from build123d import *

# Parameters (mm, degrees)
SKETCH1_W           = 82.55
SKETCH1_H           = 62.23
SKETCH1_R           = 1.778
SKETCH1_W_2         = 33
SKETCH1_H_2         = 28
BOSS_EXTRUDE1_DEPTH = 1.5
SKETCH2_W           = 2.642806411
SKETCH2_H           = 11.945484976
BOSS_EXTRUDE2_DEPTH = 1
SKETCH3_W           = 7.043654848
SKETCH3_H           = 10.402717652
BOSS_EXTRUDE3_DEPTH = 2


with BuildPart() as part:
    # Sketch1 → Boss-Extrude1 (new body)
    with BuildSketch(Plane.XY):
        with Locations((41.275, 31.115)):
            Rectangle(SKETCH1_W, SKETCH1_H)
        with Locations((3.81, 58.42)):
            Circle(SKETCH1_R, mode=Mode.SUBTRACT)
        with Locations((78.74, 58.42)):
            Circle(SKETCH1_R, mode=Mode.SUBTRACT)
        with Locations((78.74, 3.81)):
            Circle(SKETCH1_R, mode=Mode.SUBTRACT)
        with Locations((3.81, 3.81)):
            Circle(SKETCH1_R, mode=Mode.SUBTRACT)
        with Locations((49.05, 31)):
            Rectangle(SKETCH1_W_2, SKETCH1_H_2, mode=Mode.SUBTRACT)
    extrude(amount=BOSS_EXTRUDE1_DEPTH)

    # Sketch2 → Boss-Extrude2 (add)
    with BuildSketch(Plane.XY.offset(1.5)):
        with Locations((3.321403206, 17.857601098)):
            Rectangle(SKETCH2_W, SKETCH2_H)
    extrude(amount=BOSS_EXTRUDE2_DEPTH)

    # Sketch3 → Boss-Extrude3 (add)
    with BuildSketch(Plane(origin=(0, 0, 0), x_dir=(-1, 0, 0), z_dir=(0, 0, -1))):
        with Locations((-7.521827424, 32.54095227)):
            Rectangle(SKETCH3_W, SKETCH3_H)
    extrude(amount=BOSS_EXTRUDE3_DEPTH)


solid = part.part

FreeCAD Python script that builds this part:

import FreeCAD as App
import Part
import Sketcher
Q = App.Units.Quantity

doc = App.newDocument("Part")
body = doc.addObject("PartDesign::Body", "Body")

# Sketch on XY plane
sketch1 = body.newObject("Sketcher::SketchObject", "Sketch")
sketch1.AttachmentSupport = (doc.getObject("XY_Plane"), [""])
sketch1.MapMode = "FlatFace"
sketch1.addGeometry([
    Part.LineSegment(App.Vector(0, 62.23, 0), App.Vector(0, 0, 0)),  # 0
    Part.LineSegment(App.Vector(0, 0, 0), App.Vector(82.55, 0, 0)),  # 1
    Part.LineSegment(App.Vector(82.55, 0, 0), App.Vector(82.55, 62.23, 0)),  # 2
    Part.LineSegment(App.Vector(82.55, 62.23, 0), App.Vector(0, 62.23, 0)),  # 3
    Part.Circle(App.Vector(3.81, 3.81, 0), App.Vector(0, 0, 1), 1.778),  # 4
    Part.Circle(App.Vector(78.74, 3.81, 0), App.Vector(0, 0, 1), 1.778),  # 5
    Part.LineSegment(App.Vector(65.55, 17, 0), App.Vector(32.55, 17, 0)),  # 6
    Part.LineSegment(App.Vector(32.55, 17, 0), App.Vector(32.55, 45, 0)),  # 7
    Part.LineSegment(App.Vector(32.55, 45, 0), App.Vector(65.55, 45, 0)),  # 8
    Part.LineSegment(App.Vector(65.55, 45, 0), App.Vector(65.55, 17, 0)),  # 9
    Part.Circle(App.Vector(3.81, 58.42, 0), App.Vector(0, 0, 1), 1.778),  # 10
    Part.Circle(App.Vector(78.74, 58.42, 0), App.Vector(0, 0, 1), 1.778),  # 11
], False)
sketch1.addConstraint([
    Sketcher.Constraint("Coincident", 0, 2, 1, 1),
    Sketcher.Constraint("Coincident", 1, 2, 2, 1),
    Sketcher.Constraint("Coincident", 2, 2, 3, 1),
    Sketcher.Constraint("Coincident", 3, 2, 0, 1),
    Sketcher.Constraint("Coincident", 6, 2, 7, 1),
    Sketcher.Constraint("Coincident", 7, 2, 8, 1),
    Sketcher.Constraint("Coincident", 8, 2, 9, 1),
    Sketcher.Constraint("Coincident", 9, 2, 6, 1),
    Sketcher.Constraint("Vertical", 0),
    Sketcher.Constraint("Horizontal", 1),
    Sketcher.Constraint("Vertical", 2),
    Sketcher.Constraint("Horizontal", 3),
    Sketcher.Constraint("Horizontal", 6),
    Sketcher.Constraint("Vertical", 7),
    Sketcher.Constraint("Horizontal", 8),
    Sketcher.Constraint("Vertical", 9),
    Sketcher.Constraint("Coincident", 0, 2, -1, 1),
    Sketcher.Constraint("Equal", 4, 5),
    Sketcher.Constraint("Equal", 5, 10),
    Sketcher.Constraint("Equal", 10, 11),
    Sketcher.Constraint("Horizontal", 4, 3, 5, 3),
    Sketcher.Constraint("Horizontal", 10, 3, 11, 3),
    Sketcher.Constraint("Vertical", 4, 3, 10, 3),
    Sketcher.Constraint("Vertical", 5, 3, 11, 3),
    Sketcher.Constraint("DistanceX", 6, 2, 6, 1, Q("33 mm")),
    Sketcher.Constraint("DistanceY", 7, 1, 7, 2, Q("28 mm")),
    Sketcher.Constraint("Diameter", 4, Q("3.556 mm")),
    Sketcher.Constraint("DistanceY", -1, 1, 6, 2, Q("17 mm")),
    Sketcher.Constraint("DistanceX", 6, 2, 1, 2, Q("50 mm")),
    Sketcher.Constraint("DistanceX", 1, 1, 1, 2, Q("82.55 mm")),
    Sketcher.Constraint("DistanceY", 0, 2, 0, 1, Q("62.23 mm")),
    Sketcher.Constraint("DistanceX", -1, 1, 4, 3, Q("3.81 mm")),
    Sketcher.Constraint("DistanceY", -1, 1, 4, 3, Q("3.81 mm")),
    Sketcher.Constraint("DistanceX", -1, 1, 5, 3, Q("78.74 mm")),
    Sketcher.Constraint("DistanceY", -1, 1, 10, 3, Q("58.42 mm")),
])
pad1 = body.newObject("PartDesign::Pad", "Pad")
pad1.Profile = sketch1
pad1.Length = 1.5

# Sketch on XY plane
sketch2 = body.newObject("Sketcher::SketchObject", "Sketch001")
sketch2.AttachmentSupport = (doc.getObject("XY_Plane"), [""])
sketch2.MapMode = "FlatFace"
sketch2.AttachmentOffset = App.Placement(App.Vector(0, 0, 1.5), App.Rotation())
sketch2.addGeometry([
    Part.LineSegment(App.Vector(2, 23.830344, 0), App.Vector(2, 11.884859, 0)),
    Part.LineSegment(App.Vector(2, 11.884859, 0), App.Vector(4.642806, 11.884859, 0)),
    Part.LineSegment(App.Vector(4.642806, 11.884859, 0), App.Vector(4.642806, 23.830344, 0)),
    Part.LineSegment(App.Vector(4.642806, 23.830344, 0), App.Vector(2, 23.830344, 0)),
], False)
sketch2.addConstraint([
    Sketcher.Constraint("Coincident", 0, 2, 1, 1),
    Sketcher.Constraint("Coincident", 1, 2, 2, 1),
    Sketcher.Constraint("Coincident", 2, 2, 3, 1),
    Sketcher.Constraint("Coincident", 3, 2, 0, 1),
    Sketcher.Constraint("Vertical", 0),
    Sketcher.Constraint("Horizontal", 1),
    Sketcher.Constraint("Vertical", 2),
    Sketcher.Constraint("Horizontal", 3),
    Sketcher.Constraint("DistanceX", -1, 1, 0, 2, Q("2 mm")),
    Sketcher.Constraint("DistanceX", 1, 1, 1, 2, Q("2.642806 mm")),
    Sketcher.Constraint("DistanceY", 0, 2, 0, 1, Q("11.945485 mm")),
    Sketcher.Constraint("DistanceY", -1, 1, 0, 2, Q("11.884859 mm")),
])
pad2 = body.newObject("PartDesign::Pad", "Pad001")
pad2.Profile = sketch2
pad2.Length = 1

# Sketch on XY plane
sketch3 = body.newObject("Sketcher::SketchObject", "Sketch002")
sketch3.AttachmentSupport = (doc.getObject("XY_Plane"), [""])
sketch3.MapMode = "FlatFace"
sketch3.addGeometry([
    Part.LineSegment(App.Vector(11.043655, 37.742311, 0), App.Vector(11.043655, 27.339593, 0)),
    Part.LineSegment(App.Vector(11.043655, 27.339593, 0), App.Vector(4, 27.339593, 0)),
    Part.LineSegment(App.Vector(4, 27.339593, 0), App.Vector(4, 37.742311, 0)),
    Part.LineSegment(App.Vector(4, 37.742311, 0), App.Vector(11.043655, 37.742311, 0)),
], False)
sketch3.addConstraint([
    Sketcher.Constraint("Coincident", 0, 2, 1, 1),
    Sketcher.Constraint("Coincident", 1, 2, 2, 1),
    Sketcher.Constraint("Coincident", 2, 2, 3, 1),
    Sketcher.Constraint("Coincident", 3, 2, 0, 1),
    Sketcher.Constraint("Vertical", 0),
    Sketcher.Constraint("Horizontal", 1),
    Sketcher.Constraint("Vertical", 2),
    Sketcher.Constraint("Horizontal", 3),
    Sketcher.Constraint("DistanceX", -1, 1, 1, 2, Q("4 mm")),
    Sketcher.Constraint("DistanceX", 1, 2, 1, 1, Q("7.043655 mm")),
    Sketcher.Constraint("DistanceY", 0, 2, 0, 1, Q("10.402718 mm")),
    Sketcher.Constraint("DistanceY", -1, 1, 2, 2, Q("37.742311 mm")),
])
pad3 = body.newObject("PartDesign::Pad", "Pad002")
pad3.Profile = sketch3
pad3.Length = 2
pad3.Reversed = True

doc.recompute()
